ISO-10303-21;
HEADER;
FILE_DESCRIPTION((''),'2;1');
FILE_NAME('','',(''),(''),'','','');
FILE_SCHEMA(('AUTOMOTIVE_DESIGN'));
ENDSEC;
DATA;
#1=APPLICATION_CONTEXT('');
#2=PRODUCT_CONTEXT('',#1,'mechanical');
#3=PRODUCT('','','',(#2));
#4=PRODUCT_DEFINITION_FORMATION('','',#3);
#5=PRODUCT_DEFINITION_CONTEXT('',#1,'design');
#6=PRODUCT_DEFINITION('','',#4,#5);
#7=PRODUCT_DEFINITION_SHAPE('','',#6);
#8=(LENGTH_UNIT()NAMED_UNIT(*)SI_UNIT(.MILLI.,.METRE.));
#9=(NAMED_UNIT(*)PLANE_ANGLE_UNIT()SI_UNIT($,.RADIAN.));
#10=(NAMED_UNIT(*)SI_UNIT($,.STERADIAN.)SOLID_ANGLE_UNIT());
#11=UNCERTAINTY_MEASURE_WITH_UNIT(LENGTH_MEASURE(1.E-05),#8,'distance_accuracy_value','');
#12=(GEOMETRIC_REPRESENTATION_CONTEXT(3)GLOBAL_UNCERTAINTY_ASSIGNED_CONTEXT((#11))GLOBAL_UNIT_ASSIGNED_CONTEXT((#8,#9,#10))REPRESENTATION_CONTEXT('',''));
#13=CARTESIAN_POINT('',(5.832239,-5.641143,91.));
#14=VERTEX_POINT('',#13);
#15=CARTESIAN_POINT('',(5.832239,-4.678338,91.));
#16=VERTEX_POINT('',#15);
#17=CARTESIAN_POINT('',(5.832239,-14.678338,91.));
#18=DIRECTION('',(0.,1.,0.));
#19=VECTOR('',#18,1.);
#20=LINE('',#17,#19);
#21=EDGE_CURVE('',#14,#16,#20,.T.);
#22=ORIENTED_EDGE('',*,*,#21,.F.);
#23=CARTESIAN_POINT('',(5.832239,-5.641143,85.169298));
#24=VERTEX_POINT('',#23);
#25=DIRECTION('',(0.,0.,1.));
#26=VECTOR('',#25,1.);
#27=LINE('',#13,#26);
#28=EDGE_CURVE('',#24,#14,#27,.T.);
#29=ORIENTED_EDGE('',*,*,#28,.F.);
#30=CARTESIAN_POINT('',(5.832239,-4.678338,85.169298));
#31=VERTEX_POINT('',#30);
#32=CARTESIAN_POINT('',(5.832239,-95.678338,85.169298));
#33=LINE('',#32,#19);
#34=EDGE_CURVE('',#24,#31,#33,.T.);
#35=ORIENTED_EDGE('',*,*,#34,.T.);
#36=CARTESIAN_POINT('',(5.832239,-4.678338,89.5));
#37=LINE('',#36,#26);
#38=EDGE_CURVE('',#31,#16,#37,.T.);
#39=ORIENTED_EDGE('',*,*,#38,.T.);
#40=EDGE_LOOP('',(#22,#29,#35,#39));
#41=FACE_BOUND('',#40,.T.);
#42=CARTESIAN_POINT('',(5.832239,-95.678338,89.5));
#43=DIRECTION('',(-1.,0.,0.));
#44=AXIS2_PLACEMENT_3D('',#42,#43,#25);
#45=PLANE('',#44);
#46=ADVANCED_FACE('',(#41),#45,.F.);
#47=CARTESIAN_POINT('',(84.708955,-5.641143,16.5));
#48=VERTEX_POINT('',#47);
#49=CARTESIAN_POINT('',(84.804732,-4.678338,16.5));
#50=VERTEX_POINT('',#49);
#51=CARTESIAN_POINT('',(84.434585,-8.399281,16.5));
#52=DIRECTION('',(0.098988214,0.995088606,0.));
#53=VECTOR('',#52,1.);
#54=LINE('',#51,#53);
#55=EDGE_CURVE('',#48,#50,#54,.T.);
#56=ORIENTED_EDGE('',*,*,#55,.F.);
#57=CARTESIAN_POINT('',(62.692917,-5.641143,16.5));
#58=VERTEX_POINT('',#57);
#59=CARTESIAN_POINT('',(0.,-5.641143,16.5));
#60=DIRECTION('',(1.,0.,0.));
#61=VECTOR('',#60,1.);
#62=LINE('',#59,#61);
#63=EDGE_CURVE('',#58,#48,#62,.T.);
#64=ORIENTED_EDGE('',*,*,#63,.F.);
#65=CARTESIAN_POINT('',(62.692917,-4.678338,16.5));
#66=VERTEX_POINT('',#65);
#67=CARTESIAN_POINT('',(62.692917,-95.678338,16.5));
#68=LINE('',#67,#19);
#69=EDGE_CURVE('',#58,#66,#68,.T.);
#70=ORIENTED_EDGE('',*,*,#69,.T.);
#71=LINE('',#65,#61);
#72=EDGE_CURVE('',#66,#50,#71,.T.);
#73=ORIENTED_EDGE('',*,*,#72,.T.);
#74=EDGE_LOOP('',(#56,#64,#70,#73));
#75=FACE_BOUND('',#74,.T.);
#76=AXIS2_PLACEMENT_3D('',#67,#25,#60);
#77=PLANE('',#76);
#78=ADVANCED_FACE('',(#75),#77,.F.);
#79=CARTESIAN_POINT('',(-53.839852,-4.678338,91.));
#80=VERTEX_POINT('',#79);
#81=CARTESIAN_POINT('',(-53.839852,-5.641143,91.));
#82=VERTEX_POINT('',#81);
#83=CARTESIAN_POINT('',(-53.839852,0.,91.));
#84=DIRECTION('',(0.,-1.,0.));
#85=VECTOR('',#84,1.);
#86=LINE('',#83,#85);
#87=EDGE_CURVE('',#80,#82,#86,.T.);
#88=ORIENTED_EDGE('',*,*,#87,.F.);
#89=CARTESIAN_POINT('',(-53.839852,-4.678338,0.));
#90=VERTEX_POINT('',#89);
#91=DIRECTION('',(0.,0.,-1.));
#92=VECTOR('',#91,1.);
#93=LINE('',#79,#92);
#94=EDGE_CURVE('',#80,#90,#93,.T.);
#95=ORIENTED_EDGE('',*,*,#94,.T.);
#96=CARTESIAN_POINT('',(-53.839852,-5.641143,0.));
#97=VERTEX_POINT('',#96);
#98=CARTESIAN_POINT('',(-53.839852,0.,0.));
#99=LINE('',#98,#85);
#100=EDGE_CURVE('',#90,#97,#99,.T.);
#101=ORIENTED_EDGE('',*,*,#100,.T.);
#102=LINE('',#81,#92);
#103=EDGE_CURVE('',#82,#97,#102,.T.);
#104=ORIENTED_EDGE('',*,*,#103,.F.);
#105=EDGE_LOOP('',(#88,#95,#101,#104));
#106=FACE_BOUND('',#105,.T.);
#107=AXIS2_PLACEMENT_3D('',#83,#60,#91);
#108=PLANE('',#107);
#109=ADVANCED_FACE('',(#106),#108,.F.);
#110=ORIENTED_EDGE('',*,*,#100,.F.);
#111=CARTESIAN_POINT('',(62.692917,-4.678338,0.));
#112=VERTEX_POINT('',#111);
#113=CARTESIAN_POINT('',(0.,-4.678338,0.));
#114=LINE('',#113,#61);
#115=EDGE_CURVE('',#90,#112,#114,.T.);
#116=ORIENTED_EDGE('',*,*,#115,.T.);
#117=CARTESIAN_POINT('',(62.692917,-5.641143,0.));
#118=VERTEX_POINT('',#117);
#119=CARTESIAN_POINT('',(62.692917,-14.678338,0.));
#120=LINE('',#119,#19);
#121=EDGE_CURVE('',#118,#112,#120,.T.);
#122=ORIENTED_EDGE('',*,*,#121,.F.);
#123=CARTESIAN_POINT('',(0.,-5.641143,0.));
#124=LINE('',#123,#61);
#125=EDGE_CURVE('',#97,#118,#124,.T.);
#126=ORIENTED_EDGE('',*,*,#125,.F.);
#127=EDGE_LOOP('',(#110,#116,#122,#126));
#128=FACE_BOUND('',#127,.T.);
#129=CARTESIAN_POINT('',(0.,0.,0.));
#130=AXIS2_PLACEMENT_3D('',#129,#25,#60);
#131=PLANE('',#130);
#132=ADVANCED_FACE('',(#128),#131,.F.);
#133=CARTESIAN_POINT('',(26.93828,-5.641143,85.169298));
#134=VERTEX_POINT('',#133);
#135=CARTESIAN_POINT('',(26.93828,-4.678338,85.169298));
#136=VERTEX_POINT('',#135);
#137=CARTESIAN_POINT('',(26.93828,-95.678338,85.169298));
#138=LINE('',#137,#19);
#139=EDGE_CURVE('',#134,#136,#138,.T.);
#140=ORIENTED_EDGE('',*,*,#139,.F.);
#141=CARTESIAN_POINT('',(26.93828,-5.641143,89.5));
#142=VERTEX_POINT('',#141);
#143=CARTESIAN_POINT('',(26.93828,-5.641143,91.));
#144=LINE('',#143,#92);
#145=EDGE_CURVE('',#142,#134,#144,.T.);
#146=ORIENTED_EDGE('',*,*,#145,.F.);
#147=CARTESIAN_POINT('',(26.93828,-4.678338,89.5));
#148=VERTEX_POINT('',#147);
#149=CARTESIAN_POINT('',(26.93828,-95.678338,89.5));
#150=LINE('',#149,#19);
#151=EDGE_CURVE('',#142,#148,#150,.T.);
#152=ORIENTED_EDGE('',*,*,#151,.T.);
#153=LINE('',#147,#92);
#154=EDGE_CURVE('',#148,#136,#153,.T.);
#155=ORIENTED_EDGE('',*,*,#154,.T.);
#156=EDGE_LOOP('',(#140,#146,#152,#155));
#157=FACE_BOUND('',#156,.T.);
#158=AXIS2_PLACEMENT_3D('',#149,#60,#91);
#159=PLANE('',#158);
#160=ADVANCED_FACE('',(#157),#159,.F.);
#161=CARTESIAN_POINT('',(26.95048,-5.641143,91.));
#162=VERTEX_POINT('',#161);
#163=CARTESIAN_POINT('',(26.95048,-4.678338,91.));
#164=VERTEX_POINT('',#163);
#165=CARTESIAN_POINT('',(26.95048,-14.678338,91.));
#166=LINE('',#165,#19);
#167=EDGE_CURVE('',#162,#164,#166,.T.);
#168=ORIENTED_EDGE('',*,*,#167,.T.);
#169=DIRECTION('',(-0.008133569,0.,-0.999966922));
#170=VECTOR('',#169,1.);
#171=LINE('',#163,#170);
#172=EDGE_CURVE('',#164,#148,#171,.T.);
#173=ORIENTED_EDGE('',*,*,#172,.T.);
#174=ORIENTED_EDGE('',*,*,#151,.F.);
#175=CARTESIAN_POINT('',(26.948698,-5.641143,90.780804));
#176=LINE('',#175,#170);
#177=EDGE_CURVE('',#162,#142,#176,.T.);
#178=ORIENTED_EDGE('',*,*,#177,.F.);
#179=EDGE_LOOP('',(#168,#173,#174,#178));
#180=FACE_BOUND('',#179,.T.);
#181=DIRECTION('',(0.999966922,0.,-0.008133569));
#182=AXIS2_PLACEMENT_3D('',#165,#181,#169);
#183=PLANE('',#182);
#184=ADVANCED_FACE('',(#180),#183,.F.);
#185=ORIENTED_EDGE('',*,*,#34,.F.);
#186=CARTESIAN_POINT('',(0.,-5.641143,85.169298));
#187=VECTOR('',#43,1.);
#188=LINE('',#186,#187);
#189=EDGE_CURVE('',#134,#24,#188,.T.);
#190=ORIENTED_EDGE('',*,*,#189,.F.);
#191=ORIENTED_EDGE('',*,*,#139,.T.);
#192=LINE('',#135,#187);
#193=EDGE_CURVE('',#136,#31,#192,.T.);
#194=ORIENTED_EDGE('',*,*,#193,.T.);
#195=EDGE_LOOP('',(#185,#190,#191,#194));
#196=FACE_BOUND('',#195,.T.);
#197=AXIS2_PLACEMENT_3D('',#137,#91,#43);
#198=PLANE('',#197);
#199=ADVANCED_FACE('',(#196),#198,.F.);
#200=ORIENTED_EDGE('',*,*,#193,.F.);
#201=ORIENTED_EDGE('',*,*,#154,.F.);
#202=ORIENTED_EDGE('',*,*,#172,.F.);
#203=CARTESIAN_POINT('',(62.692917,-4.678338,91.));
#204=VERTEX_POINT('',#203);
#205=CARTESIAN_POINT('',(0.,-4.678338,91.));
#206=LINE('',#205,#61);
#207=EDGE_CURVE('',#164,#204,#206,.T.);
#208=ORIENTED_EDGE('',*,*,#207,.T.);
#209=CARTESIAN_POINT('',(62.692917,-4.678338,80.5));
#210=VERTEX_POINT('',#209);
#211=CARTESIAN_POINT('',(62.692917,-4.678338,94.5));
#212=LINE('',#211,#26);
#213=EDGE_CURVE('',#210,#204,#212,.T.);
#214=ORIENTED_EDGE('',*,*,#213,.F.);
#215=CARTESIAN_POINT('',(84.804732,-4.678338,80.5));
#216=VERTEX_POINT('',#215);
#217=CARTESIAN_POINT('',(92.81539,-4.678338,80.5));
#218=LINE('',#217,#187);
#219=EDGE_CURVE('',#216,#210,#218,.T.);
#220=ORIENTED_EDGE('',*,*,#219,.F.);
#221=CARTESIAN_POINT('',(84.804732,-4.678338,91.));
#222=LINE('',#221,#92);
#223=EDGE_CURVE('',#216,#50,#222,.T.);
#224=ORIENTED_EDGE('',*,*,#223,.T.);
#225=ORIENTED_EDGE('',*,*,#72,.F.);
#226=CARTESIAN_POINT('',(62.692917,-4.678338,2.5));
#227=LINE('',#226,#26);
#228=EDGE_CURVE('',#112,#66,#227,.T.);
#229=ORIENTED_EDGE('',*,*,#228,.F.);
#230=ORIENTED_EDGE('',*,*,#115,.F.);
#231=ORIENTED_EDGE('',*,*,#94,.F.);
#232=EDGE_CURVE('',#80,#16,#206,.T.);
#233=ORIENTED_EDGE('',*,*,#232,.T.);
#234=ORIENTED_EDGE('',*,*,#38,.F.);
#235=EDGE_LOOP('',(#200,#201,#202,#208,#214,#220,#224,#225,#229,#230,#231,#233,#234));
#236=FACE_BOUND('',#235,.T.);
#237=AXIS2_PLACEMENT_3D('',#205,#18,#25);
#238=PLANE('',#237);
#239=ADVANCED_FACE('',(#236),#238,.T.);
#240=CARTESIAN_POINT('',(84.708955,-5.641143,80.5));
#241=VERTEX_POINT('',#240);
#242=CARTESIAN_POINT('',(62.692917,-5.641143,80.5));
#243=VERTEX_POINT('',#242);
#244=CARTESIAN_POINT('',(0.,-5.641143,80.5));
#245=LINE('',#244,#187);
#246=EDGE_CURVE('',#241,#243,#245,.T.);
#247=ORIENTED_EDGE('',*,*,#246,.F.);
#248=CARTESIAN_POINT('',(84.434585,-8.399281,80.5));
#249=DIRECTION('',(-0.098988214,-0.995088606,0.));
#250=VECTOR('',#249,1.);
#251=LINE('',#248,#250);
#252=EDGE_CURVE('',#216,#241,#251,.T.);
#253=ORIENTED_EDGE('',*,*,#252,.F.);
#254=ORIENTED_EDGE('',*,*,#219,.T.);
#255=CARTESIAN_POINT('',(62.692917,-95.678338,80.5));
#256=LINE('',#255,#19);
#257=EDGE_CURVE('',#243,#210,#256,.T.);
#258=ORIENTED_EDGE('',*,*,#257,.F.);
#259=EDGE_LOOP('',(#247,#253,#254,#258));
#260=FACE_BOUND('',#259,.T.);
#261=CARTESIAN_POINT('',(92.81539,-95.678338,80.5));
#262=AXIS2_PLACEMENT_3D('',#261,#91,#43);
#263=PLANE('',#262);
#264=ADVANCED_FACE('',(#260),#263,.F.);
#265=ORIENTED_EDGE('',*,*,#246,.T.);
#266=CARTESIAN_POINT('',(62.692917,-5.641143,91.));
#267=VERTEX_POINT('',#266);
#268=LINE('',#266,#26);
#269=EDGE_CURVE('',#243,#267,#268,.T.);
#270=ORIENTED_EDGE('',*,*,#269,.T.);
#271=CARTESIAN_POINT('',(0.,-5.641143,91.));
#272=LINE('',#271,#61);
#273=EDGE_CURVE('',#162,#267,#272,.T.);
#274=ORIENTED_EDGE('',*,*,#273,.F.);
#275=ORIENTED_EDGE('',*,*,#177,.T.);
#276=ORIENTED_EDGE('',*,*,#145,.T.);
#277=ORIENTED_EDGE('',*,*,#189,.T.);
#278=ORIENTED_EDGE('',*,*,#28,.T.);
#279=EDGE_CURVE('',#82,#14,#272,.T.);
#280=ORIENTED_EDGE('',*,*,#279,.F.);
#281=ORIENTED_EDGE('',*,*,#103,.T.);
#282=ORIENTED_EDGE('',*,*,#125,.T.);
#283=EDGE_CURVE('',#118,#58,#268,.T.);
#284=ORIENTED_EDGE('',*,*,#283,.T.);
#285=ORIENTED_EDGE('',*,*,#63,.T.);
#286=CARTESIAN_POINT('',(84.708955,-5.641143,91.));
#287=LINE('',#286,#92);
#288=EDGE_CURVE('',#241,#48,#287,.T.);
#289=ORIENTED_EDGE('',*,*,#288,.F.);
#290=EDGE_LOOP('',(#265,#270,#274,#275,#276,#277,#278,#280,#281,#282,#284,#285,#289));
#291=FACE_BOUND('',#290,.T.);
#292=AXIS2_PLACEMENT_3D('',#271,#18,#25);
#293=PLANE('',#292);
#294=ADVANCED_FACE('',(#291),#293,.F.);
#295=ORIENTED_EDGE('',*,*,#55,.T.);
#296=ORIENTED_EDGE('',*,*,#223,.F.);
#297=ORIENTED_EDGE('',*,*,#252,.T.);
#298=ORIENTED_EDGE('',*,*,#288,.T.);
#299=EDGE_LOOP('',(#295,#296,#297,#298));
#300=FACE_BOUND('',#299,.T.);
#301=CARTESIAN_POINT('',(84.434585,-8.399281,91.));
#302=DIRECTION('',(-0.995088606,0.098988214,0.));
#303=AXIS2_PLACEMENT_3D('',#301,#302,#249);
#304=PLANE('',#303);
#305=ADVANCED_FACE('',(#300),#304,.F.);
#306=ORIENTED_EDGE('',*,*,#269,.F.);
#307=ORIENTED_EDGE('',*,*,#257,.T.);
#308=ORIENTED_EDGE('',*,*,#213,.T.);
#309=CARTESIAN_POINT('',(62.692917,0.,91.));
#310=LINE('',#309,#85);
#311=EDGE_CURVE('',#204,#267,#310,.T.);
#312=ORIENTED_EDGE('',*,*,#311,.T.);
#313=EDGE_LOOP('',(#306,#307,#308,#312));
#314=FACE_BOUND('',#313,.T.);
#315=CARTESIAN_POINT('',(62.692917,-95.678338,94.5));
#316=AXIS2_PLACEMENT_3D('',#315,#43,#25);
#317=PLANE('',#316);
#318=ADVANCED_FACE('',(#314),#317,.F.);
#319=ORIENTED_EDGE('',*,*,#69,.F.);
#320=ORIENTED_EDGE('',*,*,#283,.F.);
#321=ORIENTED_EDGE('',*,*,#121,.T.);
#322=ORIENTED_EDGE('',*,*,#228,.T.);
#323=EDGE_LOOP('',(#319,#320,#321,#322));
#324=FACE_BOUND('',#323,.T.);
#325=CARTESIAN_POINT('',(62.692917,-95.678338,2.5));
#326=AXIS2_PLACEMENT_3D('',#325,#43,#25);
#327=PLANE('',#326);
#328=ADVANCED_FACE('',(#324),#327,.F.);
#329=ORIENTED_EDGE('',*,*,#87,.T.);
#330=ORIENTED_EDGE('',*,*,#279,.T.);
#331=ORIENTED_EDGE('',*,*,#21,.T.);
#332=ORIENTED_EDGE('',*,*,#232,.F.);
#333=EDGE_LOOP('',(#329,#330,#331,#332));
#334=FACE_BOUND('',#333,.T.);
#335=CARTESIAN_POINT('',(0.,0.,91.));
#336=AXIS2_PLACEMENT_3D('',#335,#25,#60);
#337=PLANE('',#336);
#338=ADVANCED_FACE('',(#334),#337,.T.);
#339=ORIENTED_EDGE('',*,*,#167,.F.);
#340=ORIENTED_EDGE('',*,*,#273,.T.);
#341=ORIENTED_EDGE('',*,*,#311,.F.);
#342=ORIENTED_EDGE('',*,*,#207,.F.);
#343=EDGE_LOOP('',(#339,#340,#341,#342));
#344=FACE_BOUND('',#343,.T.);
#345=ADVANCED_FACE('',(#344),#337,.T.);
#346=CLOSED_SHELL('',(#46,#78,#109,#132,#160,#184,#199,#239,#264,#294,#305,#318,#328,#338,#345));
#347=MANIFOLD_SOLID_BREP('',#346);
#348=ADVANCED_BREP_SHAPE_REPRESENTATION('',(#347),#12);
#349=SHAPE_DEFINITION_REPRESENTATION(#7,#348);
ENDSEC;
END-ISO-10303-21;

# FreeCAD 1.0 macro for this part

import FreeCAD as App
import Part
import Sketcher
Q = App.Units.Quantity


def add_polygon(sketch, points):
    """Adds a closed chain of lines whose ends are joined by coincident constraints."""
    first, n = sketch.GeometryCount, len(points)
    for a, b in zip(points, points[1:] + points[:1]):
        sketch.addGeometry(Part.LineSegment(App.Vector(*a, 0), App.Vector(*b, 0)), False)
    for i in range(n):
        sketch.addConstraint(Sketcher.Constraint("Coincident", first + i, 2, first + (i + 1) % n, 1))

doc = App.newDocument("Part")
body = doc.addObject("PartDesign::Body", "Body")

# Sketch on XY plane
sketch1 = doc.addObject("Sketcher::SketchObject", "Sketch")
body.addObject(sketch1)
sketch1.AttachmentSupport = (doc.XY_Plane, [""])
sketch1.MapMode = "FlatFace"
add_polygon(sketch1, [(-53.839852, -4.678338), (-53.839852, -5.641143), (84.708955, -5.641143), (84.804732, -4.678338)])  # lines 0-3
sketch1.addConstraint([
    Sketcher.Constraint("Vertical", 0),
    Sketcher.Constraint("Horizontal", 1),
    Sketcher.Constraint("Horizontal", 3),
    Sketcher.Constraint("DistanceX", 1, 1, 1, 2, Q("138.548807 mm")),
    Sketcher.Constraint("DistanceX", 3, 2, 3, 1, Q("138.644584 mm")),
    Sketcher.Constraint("DistanceY", 0, 2, 0, 1, Q("0.962805 mm")),
    Sketcher.Constraint("DistanceX", 0, 2, -1, 1, Q("53.839852 mm")),
    Sketcher.Constraint("DistanceY", 0, 2, -1, 1, Q("5.641143 mm")),
])
pad1 = doc.addObject("PartDesign::Pad", "Pad")
body.addObject(pad1)
pad1.Profile = sketch1
pad1.Length = 91

# Sketch on XZ plane
sketch2 = doc.addObject("Sketcher::SketchObject", "Sketch001")
body.addObject(sketch2)
sketch2.AttachmentSupport = (doc.XZ_Plane, [""])
sketch2.MapMode = "FlatFace"
sketch2.AttachmentOffset = App.Placement(App.Vector(0, 0, 4.678338), App.Rotation())
add_polygon(sketch2, [(5.832239, 85.169298), (5.832239, 89.5), (26.93828, 89.5), (26.93828, 85.169298)])  # lines 0-3
add_polygon(sketch2, [(62.692917, 2.5), (62.692917, 16.5), (92.81539, 16.5), (92.81539, 2.5)])  # lines 4-7
add_polygon(sketch2, [(62.692917, 80.5), (62.692917, 94.5), (92.81539, 94.5), (92.81539, 80.5)])  # lines 8-11
sketch2.addConstraint([
    Sketcher.Constraint("Vertical", 0),
    Sketcher.Constraint("Horizontal", 1),
    Sketcher.Constraint("Vertical", 2),
    Sketcher.Constraint("Horizontal", 3),
    Sketcher.Constraint("Vertical", 4),
    Sketcher.Constraint("Horizontal", 5),
    Sketcher.Constraint("Vertical", 6),
    Sketcher.Constraint("Horizontal", 7),
    Sketcher.Constraint("Vertical", 8),
    Sketcher.Constraint("Horizontal", 9),
    Sketcher.Constraint("Vertical", 10),
    Sketcher.Constraint("Horizontal", 11),
    Sketcher.Constraint("Vertical", 7, 2, 8, 2),
    Sketcher.Constraint("Vertical", 6, 2, 9, 2),
    Sketcher.Constraint("Equal", 6, 8),
    Sketcher.Constraint("DistanceY", 4, 1, 4, 2, Q("14 mm")),
    Sketcher.Constraint("DistanceY", 4, 2, 1, 2, Q("73 mm")),
    Sketcher.Constraint("DistanceY", 1, 2, 8, 2, Q("5 mm")),
    Sketcher.Constraint("DistanceY", -1, 1, 0, 2, Q("89.5 mm")),
    Sketcher.Constraint("DistanceX", 1, 1, 1, 2, Q("21.106041 mm")),
    Sketcher.Constraint("DistanceX", 5, 1, 5, 2, Q("30.122473 mm")),
    Sketcher.Constraint("DistanceY", 0, 1, 0, 2, Q("4.330702 mm")),
    Sketcher.Constraint("DistanceX", -1, 1, 0, 2, Q("5.832239 mm")),
    Sketcher.Constraint("DistanceX", -1, 1, 5, 2, Q("92.81539 mm")),
])
pocket1 = doc.addObject("PartDesign::Pocket", "Pocket")
body.addObject(pocket1)
pocket1.Profile = sketch2
pocket1.Length = 91
pocket1.Reversed = True

# Sketch on XZ plane
sketch3 = doc.addObject("Sketcher::SketchObject", "Sketch002")
body.addObject(sketch3)
sketch3.AttachmentSupport = (doc.XZ_Plane, [""])
sketch3.MapMode = "FlatFace"
sketch3.AttachmentOffset = App.Placement(App.Vector(0, 0, 4.678338), App.Rotation())
add_polygon(sketch3, [(62.692917, 0), (62.692917, 2.5), (84.804732, 2.5), (84.804732, 0)])  # lines 0-3
sketch3.addConstraint([
    Sketcher.Constraint("Vertical", 0),
    Sketcher.Constraint("Horizontal", 1),
    Sketcher.Constraint("Vertical", 2),
    Sketcher.Constraint("Horizontal", 3),
    Sketcher.Constraint("PointOnObject", 2, 2, -1),
    Sketcher.Constraint("DistanceY", 0, 1, 0, 2, Q("2.5 mm")),
    Sketcher.Constraint("DistanceX", 1, 1, 1, 2, Q("22.111815 mm")),
    Sketcher.Constraint("DistanceX", -1, 1, 0, 2, Q("62.692917 mm")),
])
pocket2 = doc.addObject("PartDesign::Pocket", "Pocket001")
body.addObject(pocket2)
pocket2.Profile = sketch3
pocket2.Length = 10
pocket2.Reversed = True

# Sketch on XZ plane
sketch4 = doc.addObject("Sketcher::SketchObject", "Sketch003")
body.addObject(sketch4)
sketch4.AttachmentSupport = (doc.XZ_Plane, [""])
sketch4.MapMode = "FlatFace"
sketch4.AttachmentOffset = App.Placement(App.Vector(0, 0, 4.678338), App.Rotation())
add_polygon(sketch4, [(5.832239, 89.5), (5.832239, 91), (26.95048, 91), (26.93828, 89.5)])  # lines 0-3
sketch4.addConstraint([
    Sketcher.Constraint("Vertical", 0),
    Sketcher.Constraint("Horizontal", 1),
    Sketcher.Constraint("Horizontal", 3),
    Sketcher.Constraint("DistanceY", 0, 1, 0, 2, Q("1.5 mm")),
    Sketcher.Constraint("DistanceY", -1, 1, 0, 2, Q("91 mm")),
    Sketcher.Constraint("DistanceX", 1, 1, 1, 2, Q("21.118242 mm")),
    Sketcher.Constraint("DistanceX", 3, 2, 3, 1, Q("21.106041 mm")),
    Sketcher.Constraint("DistanceX", -1, 1, 0, 2, Q("5.832239 mm")),
])
pocket3 = doc.addObject("PartDesign::Pocket", "Pocket002")
body.addObject(pocket3)
pocket3.Profile = sketch4
pocket3.Length = 10
pocket3.Reversed = True

doc.recompute()
